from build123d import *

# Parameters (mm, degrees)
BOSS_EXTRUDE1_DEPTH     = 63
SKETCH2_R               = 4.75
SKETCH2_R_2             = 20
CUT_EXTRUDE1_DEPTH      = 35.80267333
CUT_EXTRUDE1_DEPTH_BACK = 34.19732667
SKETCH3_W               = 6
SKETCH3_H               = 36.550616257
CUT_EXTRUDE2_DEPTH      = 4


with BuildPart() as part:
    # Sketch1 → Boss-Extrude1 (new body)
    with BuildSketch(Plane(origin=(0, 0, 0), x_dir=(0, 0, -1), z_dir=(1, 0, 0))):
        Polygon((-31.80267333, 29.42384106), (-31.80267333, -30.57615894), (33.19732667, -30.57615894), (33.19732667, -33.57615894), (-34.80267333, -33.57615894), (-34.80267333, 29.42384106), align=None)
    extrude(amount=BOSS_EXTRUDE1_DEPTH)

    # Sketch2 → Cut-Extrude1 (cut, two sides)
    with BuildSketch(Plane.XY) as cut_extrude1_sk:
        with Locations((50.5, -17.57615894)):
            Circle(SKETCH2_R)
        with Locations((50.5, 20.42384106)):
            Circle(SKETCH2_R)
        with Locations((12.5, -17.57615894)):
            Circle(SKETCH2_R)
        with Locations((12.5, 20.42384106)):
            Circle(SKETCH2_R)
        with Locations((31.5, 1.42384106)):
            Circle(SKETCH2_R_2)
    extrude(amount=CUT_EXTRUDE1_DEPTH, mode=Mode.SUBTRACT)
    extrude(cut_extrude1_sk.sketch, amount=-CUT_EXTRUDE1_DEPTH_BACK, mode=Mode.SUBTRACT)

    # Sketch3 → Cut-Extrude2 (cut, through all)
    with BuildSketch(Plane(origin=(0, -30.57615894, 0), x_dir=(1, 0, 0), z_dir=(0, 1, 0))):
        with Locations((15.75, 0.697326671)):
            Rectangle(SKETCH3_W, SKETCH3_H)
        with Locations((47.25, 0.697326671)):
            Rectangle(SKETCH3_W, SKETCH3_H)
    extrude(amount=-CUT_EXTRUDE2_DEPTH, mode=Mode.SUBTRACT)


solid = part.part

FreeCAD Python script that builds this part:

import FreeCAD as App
import Part
import Sketcher
from FreeCAD import Vector

doc = App.newDocument("Part")
body = doc.addObject("PartDesign::Body", "Body")

sketch1 = body.newObject("Sketcher::SketchObject", "Sketch")
sketch1.AttachmentSupport = (doc.getObject("YZ_Plane"), [""])
sketch1.MapMode = "FlatFace"
sketch1.addGeometry([
    Part.LineSegment(Vector(-30.6, 31.8, 0), Vector(29.4, 31.8, 0)),
    Part.LineSegment(Vector(29.4, 31.8, 0), Vector(29.4, 34.8, 0)),
    Part.LineSegment(Vector(29.4, 34.8, 0), Vector(-33.6, 34.8, 0)),
    Part.LineSegment(Vector(-33.6, 34.8, 0), Vector(-33.6, -33.2, 0)),
    Part.LineSegment(Vector(-33.6, -33.2, 0), Vector(-30.6, -33.2, 0)),
    Part.LineSegment(Vector(-30.6, -33.2, 0), Vector(-30.6, 31.8, 0)),
], False)
sketch1.addConstraint([
    Sketcher.Constraint("Coincident", 0, 2, 1, 1),
    Sketcher.Constraint("Coincident", 1, 2, 2, 1),
    Sketcher.Constraint("Coincident", 2, 2, 3, 1),
    Sketcher.Constraint("Coincident", 3, 2, 4, 1),
    Sketcher.Constraint("Coincident", 4, 2, 5, 1),
    Sketcher.Constraint("Coincident", 5, 2, 0, 1),
    Sketcher.Constraint("Horizontal", 0),
    Sketcher.Constraint("Vertical", 1),
    Sketcher.Constraint("Horizontal", 2),
    Sketcher.Constraint("Vertical", 3),
    Sketcher.Constraint("Horizontal", 4),
    Sketcher.Constraint("Vertical", 5),
    Sketcher.Constraint("Equal", 4, 1),
    Sketcher.Constraint("DistanceX", 0, 1, 0, 2, 60.0),
    Sketcher.Constraint("DistanceX", 2, 2, 2, 1, 63.0),
    Sketcher.Constraint("DistanceY", 3, 2, 3, 1, 68.0),
    Sketcher.Constraint("DistanceX", -1, 1, 0, 2, 29.423841),
    Sketcher.Constraint("DistanceY", -1, 1, 0, 2, 31.802673),
])
pad1 = body.newObject("PartDesign::Pad", "Pad")
pad1.Profile = sketch1
pad1.Length = 63

sketch2 = body.newObject("Sketcher::SketchObject", "Sketch001")
sketch2.AttachmentSupport = (doc.getObject("XY_Plane"), [""])
sketch2.MapMode = "FlatFace"
sketch2.addGeometry([
    Part.Circle(Vector(50.5, -17.6, 0), Vector(0, 0, 1), 4.8),
    Part.Circle(Vector(50.5, 20.4, 0), Vector(0, 0, 1), 4.8),
    Part.Circle(Vector(12.5, -17.6, 0), Vector(0, 0, 1), 4.8),
    Part.Circle(Vector(12.5, 20.4, 0), Vector(0, 0, 1), 4.8),
    Part.Circle(Vector(31.5, 1.4, 0), Vector(0, 0, 1), 20),
], False)
sketch2.addConstraint([
    Sketcher.Constraint("Equal", 0, 1),
    Sketcher.Constraint("Equal", 1, 2),
    Sketcher.Constraint("Equal", 2, 3),
    Sketcher.Constraint("Horizontal", 0, 3, 2, 3),
    Sketcher.Constraint("Horizontal", 1, 3, 3, 3),
    Sketcher.Constraint("Vertical", 0, 3, 1, 3),
    Sketcher.Constraint("Vertical", 2, 3, 3, 3),
    Sketcher.Constraint("Diameter", 4, 40.0),
    Sketcher.Constraint("Diameter", 0, 9.5),
    Sketcher.Constraint("DistanceY", 0, 3, 1, 3, 38.0),
    Sketcher.Constraint("DistanceX", 2, 3, 0, 3, 38.0),
    Sketcher.Constraint("DistanceX", 4, 3, 0, 3, 19.0),
    Sketcher.Constraint("DistanceY", 0, 3, 4, 3, 19.0),
    Sketcher.Constraint("DistanceX", -1, 1, 0, 3, 50.5),
    Sketcher.Constraint("DistanceY", 0, 3, -1, 1, 17.576159),
])
pocket1 = body.newObject("PartDesign::Pocket", "Pocket")
pocket1.Profile = sketch2
pocket1.Type = "ThroughAll"
pocket1.Midplane = True

sketch3 = body.newObject("Sketcher::SketchObject", "Sketch002")
sketch3.AttachmentSupport = (doc.getObject("XZ_Plane"), [""])
sketch3.MapMode = "FlatFace"
sketch3.AttachmentOffset = App.Placement(Vector(0, 0, 30.576159), App.Rotation())
sketch3.addGeometry([
    Part.LineSegment(Vector(13, -19, 0), Vector(13, 18, 0)),
    Part.LineSegment(Vector(13, 18, 0), Vector(19, 18, 0)),
    Part.LineSegment(Vector(19, 18, 0), Vector(19, -19, 0)),
    Part.LineSegment(Vector(19, -19, 0), Vector(13, -19, 0)),
    Part.LineSegment(Vector(44, -19, 0), Vector(44, 18, 0)),
    Part.LineSegment(Vector(44, 18, 0), Vector(50, 18, 0)),
    Part.LineSegment(Vector(50, 18, 0), Vector(50, -19, 0)),
    Part.LineSegment(Vector(50, -19, 0), Vector(44, -19, 0)),
], False)
sketch3.addConstraint([
    Sketcher.Constraint("Coincident", 0, 2, 1, 1),
    Sketcher.Constraint("Coincident", 1, 2, 2, 1),
    Sketcher.Constraint("Coincident", 2, 2, 3, 1),
    Sketcher.Constraint("Coincident", 3, 2, 0, 1),
    Sketcher.Constraint("Coincident", 4, 2, 5, 1),
    Sketcher.Constraint("Coincident", 5, 2, 6, 1),
    Sketcher.Constraint("Coincident", 6, 2, 7, 1),
    Sketcher.Constraint("Coincident", 7, 2, 4, 1),
    Sketcher.Constraint("Vertical", 0),
    Sketcher.Constraint("Horizontal", 1),
    Sketcher.Constraint("Vertical", 2),
    Sketcher.Constraint("Horizontal", 3),
    Sketcher.Constraint("Vertical", 4),
    Sketcher.Constraint("Horizontal", 5),
    Sketcher.Constraint("Vertical", 6),
    Sketcher.Constraint("Horizontal", 7),
    Sketcher.Constraint("Horizontal", 1, 2, 4, 2),
    Sketcher.Constraint("Horizontal", 3, 2, 6, 2),
    Sketcher.Constraint("Equal", 3, 5),
    Sketcher.Constraint("DistanceX", 1, 1, 1, 2, 6.0),
    Sketcher.Constraint("DistanceX", 1, 2, 4, 2, 25.5),
    Sketcher.Constraint("DistanceX", -1, 1, 0, 2, 12.75),
    Sketcher.Constraint("DistanceY", 0, 1, 0, 2, 36.550616),
    Sketcher.Constraint("DistanceY", -1, 1, 0, 2, 17.577981),
])
pocket2 = body.newObject("PartDesign::Pocket", "Pocket001")
pocket2.Profile = sketch3
pocket2.Type = "ThroughAll"
pocket2.Reversed = True

doc.recompute()
